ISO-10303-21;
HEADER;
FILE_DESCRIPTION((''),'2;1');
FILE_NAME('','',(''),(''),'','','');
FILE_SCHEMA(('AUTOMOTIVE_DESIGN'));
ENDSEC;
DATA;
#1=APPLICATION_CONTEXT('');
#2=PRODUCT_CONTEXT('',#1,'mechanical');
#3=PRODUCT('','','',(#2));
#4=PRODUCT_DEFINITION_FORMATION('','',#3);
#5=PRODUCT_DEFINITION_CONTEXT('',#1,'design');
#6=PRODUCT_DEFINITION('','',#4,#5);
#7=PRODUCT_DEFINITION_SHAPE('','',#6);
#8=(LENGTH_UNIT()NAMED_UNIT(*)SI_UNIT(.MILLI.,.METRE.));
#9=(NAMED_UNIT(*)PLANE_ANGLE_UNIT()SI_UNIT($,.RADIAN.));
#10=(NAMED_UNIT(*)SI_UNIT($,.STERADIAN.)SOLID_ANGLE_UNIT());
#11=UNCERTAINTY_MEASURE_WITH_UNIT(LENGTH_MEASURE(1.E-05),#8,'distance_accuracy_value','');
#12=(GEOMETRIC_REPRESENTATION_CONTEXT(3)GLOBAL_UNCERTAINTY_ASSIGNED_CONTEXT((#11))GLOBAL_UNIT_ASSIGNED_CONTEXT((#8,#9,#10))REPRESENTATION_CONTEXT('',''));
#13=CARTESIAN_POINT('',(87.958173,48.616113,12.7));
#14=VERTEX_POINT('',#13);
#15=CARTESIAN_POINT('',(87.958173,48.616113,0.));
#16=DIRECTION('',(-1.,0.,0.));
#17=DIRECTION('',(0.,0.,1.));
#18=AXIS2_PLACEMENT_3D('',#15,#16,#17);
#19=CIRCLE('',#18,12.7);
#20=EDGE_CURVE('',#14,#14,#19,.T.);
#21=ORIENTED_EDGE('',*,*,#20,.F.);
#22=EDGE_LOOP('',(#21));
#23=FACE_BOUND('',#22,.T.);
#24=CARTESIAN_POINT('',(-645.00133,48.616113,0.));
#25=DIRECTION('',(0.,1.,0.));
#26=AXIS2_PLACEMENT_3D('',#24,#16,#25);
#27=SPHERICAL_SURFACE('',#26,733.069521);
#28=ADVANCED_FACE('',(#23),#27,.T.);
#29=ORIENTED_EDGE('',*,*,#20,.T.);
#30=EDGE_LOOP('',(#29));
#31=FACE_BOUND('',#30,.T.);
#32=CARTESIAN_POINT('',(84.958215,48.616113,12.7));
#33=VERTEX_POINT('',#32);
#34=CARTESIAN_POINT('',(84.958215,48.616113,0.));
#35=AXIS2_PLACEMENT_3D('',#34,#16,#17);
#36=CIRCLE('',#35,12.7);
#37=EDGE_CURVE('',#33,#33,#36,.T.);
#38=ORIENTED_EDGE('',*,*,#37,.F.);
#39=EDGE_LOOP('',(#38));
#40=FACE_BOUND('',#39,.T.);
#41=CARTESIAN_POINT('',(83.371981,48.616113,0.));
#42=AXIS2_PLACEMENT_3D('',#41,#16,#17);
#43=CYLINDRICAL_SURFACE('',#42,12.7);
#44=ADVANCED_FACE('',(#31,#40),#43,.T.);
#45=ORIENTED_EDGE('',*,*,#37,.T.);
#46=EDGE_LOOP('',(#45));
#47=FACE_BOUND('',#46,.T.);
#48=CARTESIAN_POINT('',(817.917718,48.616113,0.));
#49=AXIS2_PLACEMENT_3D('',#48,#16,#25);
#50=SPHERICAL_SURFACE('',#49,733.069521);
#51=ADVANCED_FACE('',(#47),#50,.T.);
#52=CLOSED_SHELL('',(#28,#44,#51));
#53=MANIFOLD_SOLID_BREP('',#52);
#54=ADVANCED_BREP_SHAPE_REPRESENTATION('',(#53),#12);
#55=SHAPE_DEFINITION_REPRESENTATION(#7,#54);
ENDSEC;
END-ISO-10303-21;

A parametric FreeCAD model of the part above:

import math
import FreeCAD as App
import Part
import Sketcher
from FreeCAD import Vector
Q = App.Units.Quantity

doc = App.newDocument("Part")
body = doc.addObject("PartDesign::Body", "Body")

sketch1 = doc.addObject("Sketcher::SketchObject", "Sketch")
body.addObject(sketch1)
sketch1.AttachmentSupport = (doc.XY_Plane, [""])
sketch1.MapMode = "FlatFace"
sketch1.addGeometry([
    Part.LineSegment(Vector(87.958173, 61.316113, 0), Vector(84.958215, 61.316113, 0)),
    Part.ArcOfCircle(Part.Circle(Vector(817.917702, 48.616113, 0), Vector(0, 0, 1), 733.069506), math.radians(179.007335), math.radians(180)),
    Part.LineSegment(Vector(84.848197, 48.616113, 0), Vector(88.068191, 48.616113, 0)),
    Part.ArcOfCircle(Part.Circle(Vector(-645.001341, 48.616113, 0), Vector(0, 0, 1), 733.069532), math.radians(0), math.radians(0.992665)),
], False)
sketch1.addGeometry(Part.LineSegment(Vector(-645.001341, 48.616113, 0), Vector(817.917702, 48.616113, 0)), True)
sketch1.addConstraint([
    Sketcher.Constraint("Coincident", 0, 2, 1, 1),
    Sketcher.Constraint("Coincident", 1, 2, 2, 1),
    Sketcher.Constraint("Coincident", 2, 2, 3, 1),
    Sketcher.Constraint("Coincident", 3, 2, 0, 1),
    Sketcher.Constraint("Horizontal", 0),
    Sketcher.Constraint("Horizontal", 2),
    Sketcher.Constraint("Horizontal", 4),
    Sketcher.Constraint("Coincident", 4, 1, 3, 3),
    Sketcher.Constraint("Coincident", 4, 2, 1, 3),
    Sketcher.Constraint("Horizontal", 2, 2, 4, 1),
    Sketcher.Constraint("DistanceY", 3, 3, 0, 2, Q("12.7 mm")),
    Sketcher.Constraint("Radius", 1, Q("733.069506 mm")),
    Sketcher.Constraint("Radius", 3, Q("733.069532 mm")),
    Sketcher.Constraint("DistanceX", 0, 2, 0, 1, Q("2.999958 mm")),
    Sketcher.Constraint("DistanceX", 3, 3, -1, 1, Q("645.001341 mm")),
    Sketcher.Constraint("DistanceY", -1, 1, 1, 3, Q("48.616113 mm")),
])
revolution = doc.addObject("PartDesign::Revolution", "Revolution")
body.addObject(revolution)
revolution.Profile = sketch1
revolution.ReferenceAxis = (sketch1, ["Axis0"])
revolution.Angle = 360

doc.recompute()
